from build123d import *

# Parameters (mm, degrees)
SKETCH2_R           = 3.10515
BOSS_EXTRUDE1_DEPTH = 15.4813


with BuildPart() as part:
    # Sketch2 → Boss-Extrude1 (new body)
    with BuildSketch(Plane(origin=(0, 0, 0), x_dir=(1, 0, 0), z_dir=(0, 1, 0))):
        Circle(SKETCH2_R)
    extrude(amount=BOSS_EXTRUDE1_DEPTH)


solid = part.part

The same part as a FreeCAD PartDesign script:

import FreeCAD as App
import Part
import Sketcher
from FreeCAD import Vector
Q = App.Units.Quantity

doc = App.newDocument("Part")
params = doc.addObject("Spreadsheet::Sheet", "Params")
for row, (alias, value) in enumerate([
    ("pad1_length", "15.4813 mm"),
], start=1):
    params.set(f"A{row}", alias)
    params.set(f"B{row}", "=" + value)
    params.setAlias(f"B{row}", alias)

body = doc.addObject("PartDesign::Body", "Body")

sketch1 = body.newObject("Sketcher::SketchObject", "Sketch")
sketch1.AttachmentSupport = (doc.getObject("XZ_Plane"), [""])
sketch1.MapMode = "FlatFace"
sketch1.addGeometry(Part.Circle(Vector(0, 0, 0), Vector(0, 0, 1), 3.1), False)
sketch1.addConstraint(Sketcher.Constraint("Coincident", 0, 3, -1, 1))
sketch1.addConstraint(Sketcher.Constraint("Diameter", 0, Q("6.2103 mm")))
pad1 = body.newObject("PartDesign::Pad", "Pad")
pad1.Profile = sketch1
pad1.setExpression("Length", "Params.pad1_length")
pad1.Reversed = True

doc.recompute()
